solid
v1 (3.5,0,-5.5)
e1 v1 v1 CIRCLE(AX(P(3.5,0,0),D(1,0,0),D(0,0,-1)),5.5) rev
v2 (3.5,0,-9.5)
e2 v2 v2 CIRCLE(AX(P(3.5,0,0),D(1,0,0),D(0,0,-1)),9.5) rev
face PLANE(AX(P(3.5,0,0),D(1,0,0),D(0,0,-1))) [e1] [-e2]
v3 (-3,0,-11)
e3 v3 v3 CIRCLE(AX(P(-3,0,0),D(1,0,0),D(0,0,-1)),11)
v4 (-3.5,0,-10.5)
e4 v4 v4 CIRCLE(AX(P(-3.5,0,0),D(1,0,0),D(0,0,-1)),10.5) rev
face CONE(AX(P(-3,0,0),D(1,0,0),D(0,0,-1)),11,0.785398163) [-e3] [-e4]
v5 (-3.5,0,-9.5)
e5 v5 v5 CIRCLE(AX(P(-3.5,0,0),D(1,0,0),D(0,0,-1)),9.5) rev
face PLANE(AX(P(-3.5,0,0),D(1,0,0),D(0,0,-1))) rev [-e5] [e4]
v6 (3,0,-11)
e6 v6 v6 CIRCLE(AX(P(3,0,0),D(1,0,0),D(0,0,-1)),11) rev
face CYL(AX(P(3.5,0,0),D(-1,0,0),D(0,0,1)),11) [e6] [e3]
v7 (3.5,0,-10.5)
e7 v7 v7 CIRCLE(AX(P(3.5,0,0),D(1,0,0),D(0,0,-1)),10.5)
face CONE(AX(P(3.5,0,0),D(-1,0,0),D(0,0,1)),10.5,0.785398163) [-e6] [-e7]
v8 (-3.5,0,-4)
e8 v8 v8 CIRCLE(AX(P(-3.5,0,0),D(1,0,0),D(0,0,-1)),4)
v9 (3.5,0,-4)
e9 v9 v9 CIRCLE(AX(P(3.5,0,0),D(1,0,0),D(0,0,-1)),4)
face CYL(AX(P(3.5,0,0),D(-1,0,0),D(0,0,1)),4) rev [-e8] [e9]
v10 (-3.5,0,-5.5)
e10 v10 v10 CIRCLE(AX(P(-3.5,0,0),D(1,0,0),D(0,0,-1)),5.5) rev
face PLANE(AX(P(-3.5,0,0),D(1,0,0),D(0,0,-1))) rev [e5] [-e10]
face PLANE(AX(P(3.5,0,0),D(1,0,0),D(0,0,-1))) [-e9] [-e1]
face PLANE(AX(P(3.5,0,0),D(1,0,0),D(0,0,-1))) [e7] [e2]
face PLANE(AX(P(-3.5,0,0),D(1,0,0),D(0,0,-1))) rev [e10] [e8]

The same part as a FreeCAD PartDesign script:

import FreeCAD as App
import Part
import Sketcher
from FreeCAD import Vector


def edges_at(feature, points):
    """Names of the edges that pass closest to the given points."""
    edges = feature.Shape.Edges
    near = lambda p: min(range(len(edges)), key=lambda i: edges[i].distToShape(Part.Vertex(*p))[0])
    return sorted({f"Edge{near(p) + 1}" for p in points})

doc = App.newDocument("Part")
body = doc.addObject("PartDesign::Body", "Body")

# Sketch on YZ plane
sketch1 = body.newObject("Sketcher::SketchObject", "Sketch")
sketch1.AttachmentSupport = (doc.getObject("YZ_Plane"), [""])
sketch1.MapMode = "FlatFace"
sketch1.addGeometry(Part.Circle(Vector(0, 0, 0), Vector(0, 0, 1), 11), False)
sketch1.addGeometry(Part.Circle(Vector(0, 0, 0), Vector(0, 0, 1), 4), False)
sketch1.addConstraint(Sketcher.Constraint("Coincident", 0, 3, -1, 1))
sketch1.addConstraint(Sketcher.Constraint("Coincident", 1, 3, -1, 1))
sketch1.addConstraint(Sketcher.Constraint("Diameter", 0, 22.0))
sketch1.addConstraint(Sketcher.Constraint("Diameter", 1, 8.0))
pad1 = body.newObject("PartDesign::Pad", "Pad")
pad1.Profile = sketch1
pad1.Length = 7
pad1.Midplane = True
doc.recompute()

chamfer = body.newObject("PartDesign::Chamfer", "Chamfer")
chamfer.Base = (pad1, edges_at(pad1, [(-3.5, 0, 11), (3.5, 0, 11)]))
chamfer.Size = 0.5

doc.recompute()
